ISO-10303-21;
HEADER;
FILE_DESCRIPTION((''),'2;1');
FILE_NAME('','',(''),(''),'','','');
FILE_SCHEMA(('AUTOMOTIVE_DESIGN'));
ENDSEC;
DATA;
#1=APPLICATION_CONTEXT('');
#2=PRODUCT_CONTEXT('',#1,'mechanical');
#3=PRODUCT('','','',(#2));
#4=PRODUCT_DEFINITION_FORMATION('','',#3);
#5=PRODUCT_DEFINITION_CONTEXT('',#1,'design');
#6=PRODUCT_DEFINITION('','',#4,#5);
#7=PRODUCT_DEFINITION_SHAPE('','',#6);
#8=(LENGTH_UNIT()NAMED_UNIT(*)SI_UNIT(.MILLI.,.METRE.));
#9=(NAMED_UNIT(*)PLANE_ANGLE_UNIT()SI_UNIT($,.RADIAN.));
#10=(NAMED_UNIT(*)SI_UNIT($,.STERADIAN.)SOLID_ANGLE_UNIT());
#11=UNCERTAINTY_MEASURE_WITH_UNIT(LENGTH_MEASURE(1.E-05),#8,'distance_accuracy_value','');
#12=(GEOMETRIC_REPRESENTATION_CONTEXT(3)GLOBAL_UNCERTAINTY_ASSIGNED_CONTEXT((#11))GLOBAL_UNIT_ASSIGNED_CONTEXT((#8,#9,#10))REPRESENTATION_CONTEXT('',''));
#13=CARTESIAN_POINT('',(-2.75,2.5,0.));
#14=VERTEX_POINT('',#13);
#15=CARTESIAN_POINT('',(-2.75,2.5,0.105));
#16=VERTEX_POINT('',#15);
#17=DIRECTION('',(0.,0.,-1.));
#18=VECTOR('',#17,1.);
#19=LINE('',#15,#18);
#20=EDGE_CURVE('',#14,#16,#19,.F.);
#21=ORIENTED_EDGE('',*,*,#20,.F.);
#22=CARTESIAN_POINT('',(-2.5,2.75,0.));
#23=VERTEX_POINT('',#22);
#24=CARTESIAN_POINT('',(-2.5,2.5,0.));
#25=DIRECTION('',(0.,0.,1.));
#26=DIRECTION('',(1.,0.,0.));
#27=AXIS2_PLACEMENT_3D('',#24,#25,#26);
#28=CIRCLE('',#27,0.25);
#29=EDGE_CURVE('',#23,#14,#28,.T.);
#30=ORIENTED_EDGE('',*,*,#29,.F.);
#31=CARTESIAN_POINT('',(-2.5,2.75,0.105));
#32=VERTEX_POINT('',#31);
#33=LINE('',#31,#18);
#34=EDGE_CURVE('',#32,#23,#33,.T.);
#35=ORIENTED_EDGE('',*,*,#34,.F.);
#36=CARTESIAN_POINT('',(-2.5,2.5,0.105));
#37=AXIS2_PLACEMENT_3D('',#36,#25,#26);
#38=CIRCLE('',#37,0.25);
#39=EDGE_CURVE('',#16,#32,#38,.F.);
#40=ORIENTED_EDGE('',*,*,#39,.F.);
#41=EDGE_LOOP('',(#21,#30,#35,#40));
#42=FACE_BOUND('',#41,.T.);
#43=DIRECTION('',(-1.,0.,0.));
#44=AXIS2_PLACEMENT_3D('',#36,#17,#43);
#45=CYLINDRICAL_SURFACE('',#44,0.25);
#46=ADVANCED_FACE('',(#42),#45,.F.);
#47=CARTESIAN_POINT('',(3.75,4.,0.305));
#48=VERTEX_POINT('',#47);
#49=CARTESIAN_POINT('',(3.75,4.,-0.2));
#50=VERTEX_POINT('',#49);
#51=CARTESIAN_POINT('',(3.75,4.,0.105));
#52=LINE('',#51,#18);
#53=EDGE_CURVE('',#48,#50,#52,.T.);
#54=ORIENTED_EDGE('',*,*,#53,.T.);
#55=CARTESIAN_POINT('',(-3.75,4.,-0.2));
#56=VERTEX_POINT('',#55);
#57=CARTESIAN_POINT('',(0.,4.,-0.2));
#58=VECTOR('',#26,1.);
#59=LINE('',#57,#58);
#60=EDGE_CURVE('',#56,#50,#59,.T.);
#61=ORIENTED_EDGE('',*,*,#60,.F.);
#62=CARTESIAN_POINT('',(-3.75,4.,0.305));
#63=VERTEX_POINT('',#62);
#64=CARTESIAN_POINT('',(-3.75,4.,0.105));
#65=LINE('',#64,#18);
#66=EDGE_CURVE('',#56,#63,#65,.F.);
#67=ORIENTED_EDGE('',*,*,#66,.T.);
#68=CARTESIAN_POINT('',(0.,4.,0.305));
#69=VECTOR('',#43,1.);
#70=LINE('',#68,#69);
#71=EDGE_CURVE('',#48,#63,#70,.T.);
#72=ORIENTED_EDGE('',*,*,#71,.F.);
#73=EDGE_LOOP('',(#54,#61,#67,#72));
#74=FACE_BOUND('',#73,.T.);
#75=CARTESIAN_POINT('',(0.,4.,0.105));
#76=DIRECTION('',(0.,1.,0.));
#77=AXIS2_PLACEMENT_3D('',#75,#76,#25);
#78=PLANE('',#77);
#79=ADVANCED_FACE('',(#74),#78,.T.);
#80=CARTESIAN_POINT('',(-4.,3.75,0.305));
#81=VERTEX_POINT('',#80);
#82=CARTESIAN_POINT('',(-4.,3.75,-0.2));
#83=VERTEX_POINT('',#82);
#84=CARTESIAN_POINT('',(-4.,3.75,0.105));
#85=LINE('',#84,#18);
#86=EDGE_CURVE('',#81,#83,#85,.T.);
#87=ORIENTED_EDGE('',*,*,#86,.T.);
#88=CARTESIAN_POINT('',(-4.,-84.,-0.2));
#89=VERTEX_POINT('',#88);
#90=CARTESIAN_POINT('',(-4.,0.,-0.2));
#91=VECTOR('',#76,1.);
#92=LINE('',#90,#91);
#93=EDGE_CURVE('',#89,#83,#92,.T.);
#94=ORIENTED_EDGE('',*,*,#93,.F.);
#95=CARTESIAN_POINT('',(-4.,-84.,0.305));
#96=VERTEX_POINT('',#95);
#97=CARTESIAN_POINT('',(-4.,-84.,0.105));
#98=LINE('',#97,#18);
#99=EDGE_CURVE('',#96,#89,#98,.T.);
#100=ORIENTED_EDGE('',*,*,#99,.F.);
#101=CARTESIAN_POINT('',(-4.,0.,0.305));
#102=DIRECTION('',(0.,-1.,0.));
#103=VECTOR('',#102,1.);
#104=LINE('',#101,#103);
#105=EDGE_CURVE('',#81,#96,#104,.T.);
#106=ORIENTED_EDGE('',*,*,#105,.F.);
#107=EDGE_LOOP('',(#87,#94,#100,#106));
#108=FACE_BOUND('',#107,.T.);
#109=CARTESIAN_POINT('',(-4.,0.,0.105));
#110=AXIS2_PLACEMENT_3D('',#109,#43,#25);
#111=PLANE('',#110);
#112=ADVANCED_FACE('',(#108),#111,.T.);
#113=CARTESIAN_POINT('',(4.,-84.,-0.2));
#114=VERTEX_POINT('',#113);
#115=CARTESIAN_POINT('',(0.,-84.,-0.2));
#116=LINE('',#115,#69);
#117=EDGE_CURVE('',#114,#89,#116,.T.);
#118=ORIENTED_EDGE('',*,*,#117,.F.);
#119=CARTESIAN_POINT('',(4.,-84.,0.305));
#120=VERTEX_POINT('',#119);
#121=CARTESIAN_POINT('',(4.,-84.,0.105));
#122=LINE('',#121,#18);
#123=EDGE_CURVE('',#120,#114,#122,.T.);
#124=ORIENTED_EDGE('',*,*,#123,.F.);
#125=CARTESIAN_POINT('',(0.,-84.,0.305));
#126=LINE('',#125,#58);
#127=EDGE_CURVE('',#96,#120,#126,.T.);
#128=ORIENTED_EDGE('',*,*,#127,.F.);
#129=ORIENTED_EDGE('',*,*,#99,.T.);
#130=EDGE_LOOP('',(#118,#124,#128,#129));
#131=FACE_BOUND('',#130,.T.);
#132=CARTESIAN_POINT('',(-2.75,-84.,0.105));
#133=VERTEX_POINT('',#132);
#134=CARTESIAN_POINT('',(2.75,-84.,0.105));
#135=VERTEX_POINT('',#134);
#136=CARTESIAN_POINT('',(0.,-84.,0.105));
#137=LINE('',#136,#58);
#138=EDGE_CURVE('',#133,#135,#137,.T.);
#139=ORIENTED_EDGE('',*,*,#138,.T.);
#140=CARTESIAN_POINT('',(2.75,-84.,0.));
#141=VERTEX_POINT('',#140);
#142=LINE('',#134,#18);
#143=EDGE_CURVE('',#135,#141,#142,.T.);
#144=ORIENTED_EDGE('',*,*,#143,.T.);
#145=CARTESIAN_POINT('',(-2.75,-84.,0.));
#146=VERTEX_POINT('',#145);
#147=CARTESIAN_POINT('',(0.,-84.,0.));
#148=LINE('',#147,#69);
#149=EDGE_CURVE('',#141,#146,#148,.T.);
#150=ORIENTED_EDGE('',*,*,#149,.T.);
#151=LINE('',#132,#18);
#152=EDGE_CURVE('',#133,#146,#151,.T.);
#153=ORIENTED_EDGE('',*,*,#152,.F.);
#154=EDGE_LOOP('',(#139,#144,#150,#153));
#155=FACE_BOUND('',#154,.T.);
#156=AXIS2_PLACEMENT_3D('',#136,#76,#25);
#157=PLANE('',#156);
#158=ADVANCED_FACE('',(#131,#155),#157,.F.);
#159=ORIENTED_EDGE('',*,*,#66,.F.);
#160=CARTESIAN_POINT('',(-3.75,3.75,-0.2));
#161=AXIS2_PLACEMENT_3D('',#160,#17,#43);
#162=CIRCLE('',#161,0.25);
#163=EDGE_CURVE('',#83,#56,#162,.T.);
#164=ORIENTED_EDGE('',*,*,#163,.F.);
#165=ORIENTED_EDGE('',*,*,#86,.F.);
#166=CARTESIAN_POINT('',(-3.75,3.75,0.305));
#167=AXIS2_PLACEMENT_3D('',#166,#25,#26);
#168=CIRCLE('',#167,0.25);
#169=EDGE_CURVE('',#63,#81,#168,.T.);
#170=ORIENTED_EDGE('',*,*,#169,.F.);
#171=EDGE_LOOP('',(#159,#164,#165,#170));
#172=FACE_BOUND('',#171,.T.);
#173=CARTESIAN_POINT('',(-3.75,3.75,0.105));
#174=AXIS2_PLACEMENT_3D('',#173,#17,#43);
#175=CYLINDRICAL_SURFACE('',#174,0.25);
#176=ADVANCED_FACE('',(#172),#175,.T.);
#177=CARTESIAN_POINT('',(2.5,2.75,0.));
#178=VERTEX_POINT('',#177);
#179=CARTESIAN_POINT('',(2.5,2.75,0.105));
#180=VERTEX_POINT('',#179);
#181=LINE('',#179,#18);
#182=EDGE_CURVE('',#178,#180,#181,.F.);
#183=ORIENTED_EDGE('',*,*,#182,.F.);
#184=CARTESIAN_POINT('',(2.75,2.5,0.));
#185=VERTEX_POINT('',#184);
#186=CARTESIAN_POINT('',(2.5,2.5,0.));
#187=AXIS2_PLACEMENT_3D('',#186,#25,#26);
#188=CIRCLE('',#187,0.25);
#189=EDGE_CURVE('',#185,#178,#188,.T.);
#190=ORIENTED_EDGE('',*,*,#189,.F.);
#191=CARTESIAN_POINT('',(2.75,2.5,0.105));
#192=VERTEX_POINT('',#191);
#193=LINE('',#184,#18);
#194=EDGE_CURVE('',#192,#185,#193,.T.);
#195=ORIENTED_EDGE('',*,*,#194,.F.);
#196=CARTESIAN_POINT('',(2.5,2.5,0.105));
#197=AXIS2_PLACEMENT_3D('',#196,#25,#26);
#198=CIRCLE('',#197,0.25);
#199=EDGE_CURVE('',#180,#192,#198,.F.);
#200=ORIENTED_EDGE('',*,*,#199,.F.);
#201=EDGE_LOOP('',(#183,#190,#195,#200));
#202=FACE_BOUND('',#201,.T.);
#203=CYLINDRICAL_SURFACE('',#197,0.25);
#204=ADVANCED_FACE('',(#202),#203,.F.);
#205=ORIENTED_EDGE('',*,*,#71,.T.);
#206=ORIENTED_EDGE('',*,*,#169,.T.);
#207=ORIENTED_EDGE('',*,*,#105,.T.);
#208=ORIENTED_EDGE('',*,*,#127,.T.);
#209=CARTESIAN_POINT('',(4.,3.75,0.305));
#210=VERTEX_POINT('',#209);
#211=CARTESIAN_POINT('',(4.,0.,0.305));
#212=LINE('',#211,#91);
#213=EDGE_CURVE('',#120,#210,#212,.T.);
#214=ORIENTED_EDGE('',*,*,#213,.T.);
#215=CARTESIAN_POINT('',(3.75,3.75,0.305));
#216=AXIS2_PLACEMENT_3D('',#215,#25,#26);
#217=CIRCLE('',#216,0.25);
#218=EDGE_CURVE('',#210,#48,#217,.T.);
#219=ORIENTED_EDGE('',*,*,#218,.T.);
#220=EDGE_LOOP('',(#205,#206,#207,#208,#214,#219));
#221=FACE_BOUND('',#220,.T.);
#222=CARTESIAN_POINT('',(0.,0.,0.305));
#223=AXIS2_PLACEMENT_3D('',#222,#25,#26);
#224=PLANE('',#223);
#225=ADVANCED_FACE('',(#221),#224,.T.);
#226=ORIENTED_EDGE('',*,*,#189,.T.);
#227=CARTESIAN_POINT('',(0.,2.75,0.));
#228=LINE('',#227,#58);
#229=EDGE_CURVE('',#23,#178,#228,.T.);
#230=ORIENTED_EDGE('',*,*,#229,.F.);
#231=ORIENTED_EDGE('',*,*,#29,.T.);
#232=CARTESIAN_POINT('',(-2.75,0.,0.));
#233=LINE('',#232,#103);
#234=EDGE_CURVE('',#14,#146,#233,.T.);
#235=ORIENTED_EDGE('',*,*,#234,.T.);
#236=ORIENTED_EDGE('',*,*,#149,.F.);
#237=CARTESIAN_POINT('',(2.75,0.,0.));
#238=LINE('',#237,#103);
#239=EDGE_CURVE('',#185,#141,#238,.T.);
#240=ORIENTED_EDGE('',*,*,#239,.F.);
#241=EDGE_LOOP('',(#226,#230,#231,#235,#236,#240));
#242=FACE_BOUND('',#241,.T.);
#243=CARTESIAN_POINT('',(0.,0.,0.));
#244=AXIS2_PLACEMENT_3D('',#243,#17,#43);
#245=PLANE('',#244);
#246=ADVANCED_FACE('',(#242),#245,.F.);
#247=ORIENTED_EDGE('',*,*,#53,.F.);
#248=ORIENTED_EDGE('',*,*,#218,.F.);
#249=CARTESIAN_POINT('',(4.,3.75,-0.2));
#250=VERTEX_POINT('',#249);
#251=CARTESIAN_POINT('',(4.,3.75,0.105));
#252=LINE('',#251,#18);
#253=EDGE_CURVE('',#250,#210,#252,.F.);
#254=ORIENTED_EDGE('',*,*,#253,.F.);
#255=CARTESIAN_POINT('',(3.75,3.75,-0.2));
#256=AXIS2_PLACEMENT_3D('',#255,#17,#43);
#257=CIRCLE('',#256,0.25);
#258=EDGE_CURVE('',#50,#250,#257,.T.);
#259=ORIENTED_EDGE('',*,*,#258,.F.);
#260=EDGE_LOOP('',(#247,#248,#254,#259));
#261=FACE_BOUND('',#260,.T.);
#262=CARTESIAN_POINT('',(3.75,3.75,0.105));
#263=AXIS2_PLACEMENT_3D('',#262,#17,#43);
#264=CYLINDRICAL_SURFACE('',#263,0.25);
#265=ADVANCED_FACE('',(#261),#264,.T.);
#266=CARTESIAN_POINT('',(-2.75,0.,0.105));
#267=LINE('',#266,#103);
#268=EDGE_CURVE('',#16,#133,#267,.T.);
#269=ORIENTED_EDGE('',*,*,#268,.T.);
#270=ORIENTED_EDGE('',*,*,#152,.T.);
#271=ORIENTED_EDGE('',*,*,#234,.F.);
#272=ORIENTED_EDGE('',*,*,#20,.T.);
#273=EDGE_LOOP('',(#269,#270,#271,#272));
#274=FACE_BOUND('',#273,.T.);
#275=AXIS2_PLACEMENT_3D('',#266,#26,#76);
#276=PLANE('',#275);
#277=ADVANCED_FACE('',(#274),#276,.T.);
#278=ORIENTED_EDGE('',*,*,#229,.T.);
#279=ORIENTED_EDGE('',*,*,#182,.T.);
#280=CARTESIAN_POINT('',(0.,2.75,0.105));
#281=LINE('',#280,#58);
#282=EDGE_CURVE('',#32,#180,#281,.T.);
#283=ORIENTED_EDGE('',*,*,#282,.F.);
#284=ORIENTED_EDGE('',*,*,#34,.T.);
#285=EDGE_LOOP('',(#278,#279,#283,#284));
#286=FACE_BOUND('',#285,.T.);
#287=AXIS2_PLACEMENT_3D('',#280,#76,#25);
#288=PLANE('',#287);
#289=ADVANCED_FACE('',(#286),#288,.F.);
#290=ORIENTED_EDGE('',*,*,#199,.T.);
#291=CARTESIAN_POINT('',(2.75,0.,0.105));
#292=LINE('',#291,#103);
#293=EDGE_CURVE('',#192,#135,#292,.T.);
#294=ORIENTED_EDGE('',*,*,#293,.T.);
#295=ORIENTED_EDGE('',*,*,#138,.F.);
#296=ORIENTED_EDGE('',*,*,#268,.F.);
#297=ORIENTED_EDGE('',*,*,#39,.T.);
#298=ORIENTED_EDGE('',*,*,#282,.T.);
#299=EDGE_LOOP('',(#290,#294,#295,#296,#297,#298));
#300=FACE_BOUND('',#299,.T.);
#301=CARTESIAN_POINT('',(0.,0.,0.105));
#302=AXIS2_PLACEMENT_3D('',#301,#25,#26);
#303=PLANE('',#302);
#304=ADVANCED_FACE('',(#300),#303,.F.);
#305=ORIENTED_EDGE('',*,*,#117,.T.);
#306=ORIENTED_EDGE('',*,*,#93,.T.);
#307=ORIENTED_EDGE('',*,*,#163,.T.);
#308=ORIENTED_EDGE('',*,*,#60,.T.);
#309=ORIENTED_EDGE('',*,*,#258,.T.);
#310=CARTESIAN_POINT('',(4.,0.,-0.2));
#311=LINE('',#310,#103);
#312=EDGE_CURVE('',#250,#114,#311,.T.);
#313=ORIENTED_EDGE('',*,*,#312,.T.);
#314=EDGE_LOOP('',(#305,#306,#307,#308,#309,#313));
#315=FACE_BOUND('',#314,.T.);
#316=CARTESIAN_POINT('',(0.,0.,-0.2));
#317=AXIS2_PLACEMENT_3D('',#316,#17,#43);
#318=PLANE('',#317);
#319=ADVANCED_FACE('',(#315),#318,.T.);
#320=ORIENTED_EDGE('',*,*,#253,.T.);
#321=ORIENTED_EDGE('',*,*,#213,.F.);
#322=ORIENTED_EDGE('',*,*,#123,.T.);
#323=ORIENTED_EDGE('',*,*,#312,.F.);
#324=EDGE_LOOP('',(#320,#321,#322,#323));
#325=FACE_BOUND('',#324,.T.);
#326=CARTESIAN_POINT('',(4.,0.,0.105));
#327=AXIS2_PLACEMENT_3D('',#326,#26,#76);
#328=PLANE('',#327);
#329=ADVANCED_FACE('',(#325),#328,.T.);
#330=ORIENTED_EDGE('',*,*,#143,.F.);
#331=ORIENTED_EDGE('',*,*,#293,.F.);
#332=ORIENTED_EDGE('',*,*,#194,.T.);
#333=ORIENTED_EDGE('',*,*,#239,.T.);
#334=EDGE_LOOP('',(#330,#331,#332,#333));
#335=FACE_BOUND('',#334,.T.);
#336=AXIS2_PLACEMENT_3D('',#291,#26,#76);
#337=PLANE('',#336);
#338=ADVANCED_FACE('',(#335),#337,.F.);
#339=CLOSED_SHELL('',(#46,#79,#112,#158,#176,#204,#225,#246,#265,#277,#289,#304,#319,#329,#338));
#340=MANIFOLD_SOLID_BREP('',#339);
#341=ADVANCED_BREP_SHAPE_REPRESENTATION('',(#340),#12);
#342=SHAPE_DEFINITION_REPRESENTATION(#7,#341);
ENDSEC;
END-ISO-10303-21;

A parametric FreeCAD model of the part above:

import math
import FreeCAD as App
import Part
import Sketcher
Q = App.Units.Quantity


def edges_at(feature, points):
    """Names of the edges that pass closest to the given points."""
    edges = feature.Shape.Edges
    near = lambda p: min(range(len(edges)), key=lambda i: edges[i].distToShape(Part.Vertex(*p))[0])
    return sorted({f"Edge{near(p) + 1}" for p in points})

doc = App.newDocument("Part")
body = doc.addObject("PartDesign::Body", "Body")

# Sketch on XY plane
sketch1 = doc.addObject("Sketcher::SketchObject", "Sketch")
body.addObject(sketch1)
sketch1.AttachmentSupport = (doc.XY_Plane, [""])
sketch1.MapMode = "FlatFace"
sketch1.addGeometry(Part.LineSegment(App.Vector(2.8, -84, 0), App.Vector(4, -84, 0)), False)
sketch1.addGeometry(Part.LineSegment(App.Vector(4, -84, 0), App.Vector(4, 4, 0)), False)
sketch1.addGeometry(Part.LineSegment(App.Vector(4, 4, 0), App.Vector(-4, 4, 0)), False)
sketch1.addGeometry(Part.LineSegment(App.Vector(-4, 4, 0), App.Vector(-4, -84, 0)), False)
sketch1.addGeometry(Part.LineSegment(App.Vector(-4, -84, 0), App.Vector(-2.8, -84, 0)), False)
sketch1.addGeometry(Part.LineSegment(App.Vector(-2.8, -84, 0), App.Vector(-2.8, 2.8, 0)), False)
sketch1.addGeometry(Part.LineSegment(App.Vector(-2.8, 2.8, 0), App.Vector(2.8, 2.8, 0)), False)
sketch1.addGeometry(Part.LineSegment(App.Vector(2.8, 2.8, 0), App.Vector(2.8, -84, 0)), False)
sketch1.addConstraint(Sketcher.Constraint("Coincident", 0, 2, 1, 1))
sketch1.addConstraint(Sketcher.Constraint("Coincident", 1, 2, 2, 1))
sketch1.addConstraint(Sketcher.Constraint("Coincident", 2, 2, 3, 1))
sketch1.addConstraint(Sketcher.Constraint("Coincident", 3, 2, 4, 1))
sketch1.addConstraint(Sketcher.Constraint("Coincident", 4, 2, 5, 1))
sketch1.addConstraint(Sketcher.Constraint("Coincident", 5, 2, 6, 1))
sketch1.addConstraint(Sketcher.Constraint("Coincident", 6, 2, 7, 1))
sketch1.addConstraint(Sketcher.Constraint("Coincident", 7, 2, 0, 1))
sketch1.addConstraint(Sketcher.Constraint("Horizontal", 0))
sketch1.addConstraint(Sketcher.Constraint("Vertical", 1))
sketch1.addConstraint(Sketcher.Constraint("Horizontal", 2))
sketch1.addConstraint(Sketcher.Constraint("Vertical", 3))
sketch1.addConstraint(Sketcher.Constraint("Horizontal", 4))
sketch1.addConstraint(Sketcher.Constraint("Vertical", 5))
sketch1.addConstraint(Sketcher.Constraint("Horizontal", 6))
sketch1.addConstraint(Sketcher.Constraint("Vertical", 7))
sketch1.addConstraint(Sketcher.Constraint("Symmetric", 0, 2, 3, 2, -2))
sketch1.addConstraint(Sketcher.Constraint("Equal", 0, 4))
sketch1.addConstraint(Sketcher.Constraint("DistanceX", 2, 2, 2, 1, Q("8 mm")))
sketch1.addConstraint(Sketcher.Constraint("DistanceY", 1, 1, 1, 2, Q("88 mm")))
sketch1.addConstraint(Sketcher.Constraint("DistanceX", 6, 1, 6, 2, Q("5.5 mm")))
sketch1.addConstraint(Sketcher.Constraint("DistanceY", 0, 2, -1, 1, Q("84 mm")))
sketch1.addConstraint(Sketcher.Constraint("DistanceY", 5, 1, 5, 2, Q("86.75 mm")))
pad1 = doc.addObject("PartDesign::Pad", "Pad")
body.addObject(pad1)
pad1.Profile = sketch1
pad1.Length = 0.105
doc.recompute()

fillet = doc.addObject("PartDesign::Fillet", "Fillet")
body.addObject(fillet)
fillet.Base = (pad1, edges_at(pad1, [
    (2.75, 2.75, 0.052),
    (-2.75, 2.75, 0.052),
    (-4, 4, 0.052),
    (4, 4, 0.052),
]))
fillet.Radius = 0.25

# Sketch on XY plane
sketch2 = doc.addObject("Sketcher::SketchObject", "Sketch001")
body.addObject(sketch2)
sketch2.AttachmentSupport = (doc.XY_Plane, [""])
sketch2.MapMode = "FlatFace"
sketch2.addGeometry(Part.LineSegment(App.Vector(-4, -84, 0), App.Vector(-4, 3.75, 0)), False)
sketch2.addGeometry(Part.ArcOfCircle(Part.Circle(App.Vector(-3.75, 3.75, 0), App.Vector(0, 0, 1), 0.25), math.radians(90), math.radians(180)), False)
sketch2.addGeometry(Part.LineSegment(App.Vector(-3.75, 4, 0), App.Vector(3.75, 4, 0)), False)
sketch2.addGeometry(Part.ArcOfCircle(Part.Circle(App.Vector(3.75, 3.75, 0), App.Vector(0, 0, 1), 0.25), math.radians(0), math.radians(90)), False)
sketch2.addGeometry(Part.LineSegment(App.Vector(4, 3.75, 0), App.Vector(4, -84, 0)), False)
sketch2.addGeometry(Part.LineSegment(App.Vector(4, -84, 0), App.Vector(-4, -84, 0)), False)
sketch2.addConstraint(Sketcher.Constraint("Tangent", 0, 2, 1, 2))
sketch2.addConstraint(Sketcher.Constraint("Tangent", 1, 1, 2, 1))
sketch2.addConstraint(Sketcher.Constraint("Tangent", 2, 2, 3, 2))
sketch2.addConstraint(Sketcher.Constraint("Tangent", 3, 1, 4, 1))
sketch2.addConstraint(Sketcher.Constraint("Coincident", 4, 2, 5, 1))
sketch2.addConstraint(Sketcher.Constraint("Coincident", 5, 2, 0, 1))
sketch2.addConstraint(Sketcher.Constraint("Vertical", 0))
sketch2.addConstraint(Sketcher.Constraint("Horizontal", 2))
sketch2.addConstraint(Sketcher.Constraint("Vertical", 4))
sketch2.addConstraint(Sketcher.Constraint("Horizontal", 5))
sketch2.addConstraint(Sketcher.Constraint("Equal", 1, 3))
sketch2.addConstraint(Sketcher.Constraint("DistanceX", 5, 2, 5, 1, Q("8 mm")))
sketch2.addConstraint(Sketcher.Constraint("Radius", 1, Q("0.25 mm")))
sketch2.addConstraint(Sketcher.Constraint("DistanceX", 0, 2, -1, 1, Q("4 mm")))
sketch2.addConstraint(Sketcher.Constraint("DistanceY", -1, 1, 1, 1, Q("4 mm")))
sketch2.addConstraint(Sketcher.Constraint("DistanceY", 4, 2, -1, 1, Q("84 mm")))
pad2 = doc.addObject("PartDesign::Pad", "Pad001")
body.addObject(pad2)
pad2.Profile = sketch2
pad2.Length = 0.2
pad2.Reversed = True

# Sketch on XY plane
sketch3 = doc.addObject("Sketcher::SketchObject", "Sketch002")
body.addObject(sketch3)
sketch3.AttachmentSupport = (doc.XY_Plane, [""])
sketch3.MapMode = "FlatFace"
sketch3.AttachmentOffset = App.Placement(App.Vector(0, 0, 0.105), App.Rotation())
sketch3.addGeometry(Part.ArcOfCircle(Part.Circle(App.Vector(3.75, 3.75, 0), App.Vector(0, 0, 1), 0.25), math.radians(0), math.radians(90)), False)
sketch3.addGeometry(Part.LineSegment(App.Vector(3.75, 4, 0), App.Vector(-3.75, 4, 0)), False)
sketch3.addGeometry(Part.ArcOfCircle(Part.Circle(App.Vector(-3.75, 3.75, 0), App.Vector(0, 0, 1), 0.25), math.radians(90), math.radians(180)), False)
sketch3.addGeometry(Part.LineSegment(App.Vector(-4, 3.75, 0), App.Vector(-4, -84, 0)), False)
sketch3.addGeometry(Part.LineSegment(App.Vector(-4, -84, 0), App.Vector(4, -84, 0)), False)
sketch3.addGeometry(Part.LineSegment(App.Vector(4, -84, 0), App.Vector(4, 3.75, 0)), False)
sketch3.addConstraint(Sketcher.Constraint("Tangent", 0, 2, 1, 1))
sketch3.addConstraint(Sketcher.Constraint("Tangent", 1, 2, 2, 1))
sketch3.addConstraint(Sketcher.Constraint("Tangent", 2, 2, 3, 1))
sketch3.addConstraint(Sketcher.Constraint("Coincident", 3, 2, 4, 1))
sketch3.addConstraint(Sketcher.Constraint("Coincident", 4, 2, 5, 1))
sketch3.addConstraint(Sketcher.Constraint("Tangent", 5, 2, 0, 1))
sketch3.addConstraint(Sketcher.Constraint("Horizontal", 1))
sketch3.addConstraint(Sketcher.Constraint("Vertical", 3))
sketch3.addConstraint(Sketcher.Constraint("Horizontal", 4))
sketch3.addConstraint(Sketcher.Constraint("Vertical", 5))
sketch3.addConstraint(Sketcher.Constraint("Equal", 0, 2))
sketch3.addConstraint(Sketcher.Constraint("DistanceX", 4, 1, 4, 2, Q("8 mm")))
sketch3.addConstraint(Sketcher.Constraint("Radius", 0, Q("0.25 mm")))
sketch3.addConstraint(Sketcher.Constraint("DistanceY", -1, 1, 0, 2, Q("4 mm")))
sketch3.addConstraint(Sketcher.Constraint("DistanceX", 2, 2, -1, 1, Q("4 mm")))
sketch3.addConstraint(Sketcher.Constraint("DistanceY", 3, 2, -1, 1, Q("84 mm")))
pad3 = doc.addObject("PartDesign::Pad", "Pad002")
body.addObject(pad3)
pad3.Profile = sketch3
pad3.Length = 0.2

doc.recompute()
